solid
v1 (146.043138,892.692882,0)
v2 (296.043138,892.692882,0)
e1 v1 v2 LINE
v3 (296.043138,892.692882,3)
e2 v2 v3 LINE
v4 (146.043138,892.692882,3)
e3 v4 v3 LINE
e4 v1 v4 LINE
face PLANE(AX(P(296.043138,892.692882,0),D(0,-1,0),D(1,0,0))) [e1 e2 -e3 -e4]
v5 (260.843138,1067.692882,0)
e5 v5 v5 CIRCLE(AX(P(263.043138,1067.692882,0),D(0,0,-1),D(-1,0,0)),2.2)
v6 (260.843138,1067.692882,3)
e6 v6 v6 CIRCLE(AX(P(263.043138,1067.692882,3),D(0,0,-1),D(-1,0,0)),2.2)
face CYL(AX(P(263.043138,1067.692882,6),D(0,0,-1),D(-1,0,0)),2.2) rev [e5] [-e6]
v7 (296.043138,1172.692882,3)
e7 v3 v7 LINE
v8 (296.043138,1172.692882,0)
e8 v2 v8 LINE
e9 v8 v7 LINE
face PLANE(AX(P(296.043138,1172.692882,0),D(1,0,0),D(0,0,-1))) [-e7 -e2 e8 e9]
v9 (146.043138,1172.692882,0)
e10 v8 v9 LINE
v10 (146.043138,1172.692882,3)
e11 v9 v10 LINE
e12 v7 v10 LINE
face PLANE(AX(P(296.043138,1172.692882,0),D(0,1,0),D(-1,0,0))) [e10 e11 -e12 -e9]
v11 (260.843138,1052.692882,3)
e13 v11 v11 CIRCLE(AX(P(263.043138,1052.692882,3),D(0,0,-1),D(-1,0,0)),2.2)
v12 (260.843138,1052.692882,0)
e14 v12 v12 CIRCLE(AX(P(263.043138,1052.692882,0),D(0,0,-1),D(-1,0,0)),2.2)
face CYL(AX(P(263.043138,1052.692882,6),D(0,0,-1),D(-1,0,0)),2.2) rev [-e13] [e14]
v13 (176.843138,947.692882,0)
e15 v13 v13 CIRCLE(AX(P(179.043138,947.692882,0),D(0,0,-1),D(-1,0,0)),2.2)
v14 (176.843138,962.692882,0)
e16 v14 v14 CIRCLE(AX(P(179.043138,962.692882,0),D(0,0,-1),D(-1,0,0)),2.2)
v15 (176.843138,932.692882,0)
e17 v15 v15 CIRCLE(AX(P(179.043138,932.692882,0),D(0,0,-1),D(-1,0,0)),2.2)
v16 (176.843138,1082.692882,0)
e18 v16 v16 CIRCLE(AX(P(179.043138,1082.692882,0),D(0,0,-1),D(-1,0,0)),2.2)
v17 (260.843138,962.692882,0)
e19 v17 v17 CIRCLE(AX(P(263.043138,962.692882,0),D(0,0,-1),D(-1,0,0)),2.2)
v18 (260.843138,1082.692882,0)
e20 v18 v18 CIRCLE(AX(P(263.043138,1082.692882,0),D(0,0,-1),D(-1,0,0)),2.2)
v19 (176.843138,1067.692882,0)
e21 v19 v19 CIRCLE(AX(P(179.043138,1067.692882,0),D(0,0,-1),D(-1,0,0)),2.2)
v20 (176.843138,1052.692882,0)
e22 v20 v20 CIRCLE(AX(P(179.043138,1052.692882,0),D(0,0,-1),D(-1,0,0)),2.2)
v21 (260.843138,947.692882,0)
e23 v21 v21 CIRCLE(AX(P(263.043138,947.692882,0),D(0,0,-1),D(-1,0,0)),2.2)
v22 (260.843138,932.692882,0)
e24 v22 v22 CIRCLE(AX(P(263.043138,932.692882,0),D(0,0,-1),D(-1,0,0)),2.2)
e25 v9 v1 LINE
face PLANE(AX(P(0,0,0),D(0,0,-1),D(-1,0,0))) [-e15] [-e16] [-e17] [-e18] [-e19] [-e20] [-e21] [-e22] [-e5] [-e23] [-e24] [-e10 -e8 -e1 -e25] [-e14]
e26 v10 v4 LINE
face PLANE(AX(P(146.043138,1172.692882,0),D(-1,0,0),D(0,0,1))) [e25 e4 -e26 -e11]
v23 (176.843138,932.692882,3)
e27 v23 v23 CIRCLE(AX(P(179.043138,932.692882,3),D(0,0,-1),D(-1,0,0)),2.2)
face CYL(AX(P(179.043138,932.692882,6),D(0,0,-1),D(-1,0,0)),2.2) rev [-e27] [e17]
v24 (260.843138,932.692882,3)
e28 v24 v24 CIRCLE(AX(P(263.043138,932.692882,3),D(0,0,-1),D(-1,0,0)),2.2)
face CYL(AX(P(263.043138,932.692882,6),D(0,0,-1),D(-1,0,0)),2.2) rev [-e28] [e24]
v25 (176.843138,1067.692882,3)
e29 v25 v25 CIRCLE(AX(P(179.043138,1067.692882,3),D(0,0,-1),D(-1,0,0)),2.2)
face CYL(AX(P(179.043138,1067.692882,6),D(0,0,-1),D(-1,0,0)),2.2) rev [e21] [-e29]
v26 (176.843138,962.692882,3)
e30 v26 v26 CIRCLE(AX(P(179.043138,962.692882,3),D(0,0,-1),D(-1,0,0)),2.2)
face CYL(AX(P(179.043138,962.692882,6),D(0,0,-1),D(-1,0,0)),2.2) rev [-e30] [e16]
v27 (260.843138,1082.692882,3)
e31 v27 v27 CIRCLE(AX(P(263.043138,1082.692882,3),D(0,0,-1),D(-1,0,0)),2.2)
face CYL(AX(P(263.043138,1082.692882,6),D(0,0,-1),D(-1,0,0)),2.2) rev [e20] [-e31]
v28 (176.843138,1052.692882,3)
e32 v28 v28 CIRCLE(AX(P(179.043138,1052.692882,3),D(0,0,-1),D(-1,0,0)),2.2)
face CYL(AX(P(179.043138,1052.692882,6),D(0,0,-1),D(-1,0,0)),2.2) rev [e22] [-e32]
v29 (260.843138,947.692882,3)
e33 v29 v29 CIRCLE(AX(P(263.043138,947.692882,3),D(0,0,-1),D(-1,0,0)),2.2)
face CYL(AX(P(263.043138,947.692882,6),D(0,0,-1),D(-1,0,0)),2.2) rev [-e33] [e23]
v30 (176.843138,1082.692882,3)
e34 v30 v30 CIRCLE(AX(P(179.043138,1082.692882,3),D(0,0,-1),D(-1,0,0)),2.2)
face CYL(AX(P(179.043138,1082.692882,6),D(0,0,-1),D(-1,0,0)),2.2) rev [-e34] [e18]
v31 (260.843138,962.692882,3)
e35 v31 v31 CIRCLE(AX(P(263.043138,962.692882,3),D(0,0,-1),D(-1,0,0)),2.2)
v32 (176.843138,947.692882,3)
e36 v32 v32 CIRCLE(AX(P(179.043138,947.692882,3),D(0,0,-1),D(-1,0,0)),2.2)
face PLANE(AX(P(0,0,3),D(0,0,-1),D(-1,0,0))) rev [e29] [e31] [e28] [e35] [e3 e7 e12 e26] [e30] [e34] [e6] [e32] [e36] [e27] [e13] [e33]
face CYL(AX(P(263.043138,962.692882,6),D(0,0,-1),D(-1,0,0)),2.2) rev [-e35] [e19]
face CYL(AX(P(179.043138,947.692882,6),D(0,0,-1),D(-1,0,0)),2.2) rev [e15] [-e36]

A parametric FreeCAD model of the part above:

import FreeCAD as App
import Part
import Sketcher
from FreeCAD import Vector


def add_polygon(sketch, points):
    """Adds a closed chain of lines whose ends are joined by coincident constraints."""
    first, n = sketch.GeometryCount, len(points)
    for a, b in zip(points, points[1:] + points[:1]):
        sketch.addGeometry(Part.LineSegment(App.Vector(*a, 0), App.Vector(*b, 0)), False)
    for i in range(n):
        sketch.addConstraint(Sketcher.Constraint("Coincident", first + i, 2, first + (i + 1) % n, 1))

doc = App.newDocument("Part")
params = doc.addObject("Spreadsheet::Sheet", "Params")
for row, (alias, value) in enumerate([
    ("sketch1_width", "150 mm"),
    ("sketch1_height", "280 mm"),
    ("pad1_length", "3 mm"),
    ("sketch2_diameter", "4.4 mm"),
    ("pocket1_length", "18 mm"),
], start=1):
    params.set(f"A{row}", alias)
    params.set(f"B{row}", "=" + value)
    params.setAlias(f"B{row}", alias)

body = doc.addObject("PartDesign::Body", "Body")

# Sketch on XY plane
sketch1 = body.newObject("Sketcher::SketchObject", "Sketch")
sketch1.AttachmentSupport = (doc.getObject("XY_Plane"), [""])
sketch1.MapMode = "FlatFace"
add_polygon(sketch1, [(296.043138, 1172.692882), (146.043138, 1172.692882), (146.043137, 892.692882), (296.043138, 892.692882)])  # lines 0-3
sketch1.addConstraint(Sketcher.Constraint("Horizontal", 0))
sketch1.addConstraint(Sketcher.Constraint("Vertical", 1))
sketch1.addConstraint(Sketcher.Constraint("Horizontal", 2))
sketch1.addConstraint(Sketcher.Constraint("Vertical", 3))
sketch1.addConstraint(Sketcher.Constraint("DistanceX", 0, 2, 0, 1, 150.0))
sketch1.addConstraint(Sketcher.Constraint("DistanceY", 1, 2, 1, 1, 280.0))
sketch1.addConstraint(Sketcher.Constraint("DistanceY", -1, 1, 2, 2, 892.692882))
sketch1.addConstraint(Sketcher.Constraint("DistanceX", -1, 1, 0, 2, 146.043138))
sketch1.setExpression("Constraints[8]", "Params.sketch1_width")
sketch1.setExpression("Constraints[9]", "Params.sketch1_height")
pad1 = body.newObject("PartDesign::Pad", "Pad")
pad1.Profile = sketch1
pad1.setExpression("Length", "Params.pad1_length")

# Sketch on XY plane
sketch2 = body.newObject("Sketcher::SketchObject", "Sketch001")
sketch2.AttachmentSupport = (doc.getObject("XY_Plane"), [""])
sketch2.MapMode = "FlatFace"
sketch2.AttachmentOffset = App.Placement(Vector(0, 0, 6), App.Rotation())
sketch2.addGeometry(Part.Circle(Vector(179.043138, 1082.692882, 0), Vector(0, 0, 1), 2.2), False)
sketch2.addGeometry(Part.Circle(Vector(179.043138, 1067.692882, 0), Vector(0, 0, 1), 2.2), False)
sketch2.addGeometry(Part.Circle(Vector(179.043138, 1052.692882, 0), Vector(0, 0, 1), 2.2), False)
sketch2.addGeometry(Part.Circle(Vector(179.043138, 962.692882, 0), Vector(0, 0, 1), 2.2), False)
sketch2.addGeometry(Part.Circle(Vector(179.043138, 947.692882, 0), Vector(0, 0, 1), 2.2), False)
sketch2.addGeometry(Part.Circle(Vector(179.043138, 932.692882, 0), Vector(0, 0, 1), 2.2), False)
sketch2.addGeometry(Part.Circle(Vector(263.043138, 932.692882, 0), Vector(0, 0, 1), 2.2), False)
sketch2.addGeometry(Part.Circle(Vector(263.043138, 947.692882, 0), Vector(0, 0, 1), 2.2), False)
sketch2.addGeometry(Part.Circle(Vector(263.043138, 962.692882, 0), Vector(0, 0, 1), 2.2), False)
sketch2.addGeometry(Part.Circle(Vector(263.043138, 1052.692882, 0), Vector(0, 0, 1), 2.2), False)
sketch2.addGeometry(Part.Circle(Vector(263.043138, 1082.692882, 0), Vector(0, 0, 1), 2.2), False)
sketch2.addGeometry(Part.Circle(Vector(263.043138, 1067.692882, 0), Vector(0, 0, 1), 2.2), False)
sketch2.addConstraint(Sketcher.Constraint("Equal", 0, 1))
sketch2.addConstraint(Sketcher.Constraint("Equal", 1, 2))
sketch2.addConstraint(Sketcher.Constraint("Equal", 2, 3))
sketch2.addConstraint(Sketcher.Constraint("Equal", 3, 4))
sketch2.addConstraint(Sketcher.Constraint("Equal", 4, 5))
sketch2.addConstraint(Sketcher.Constraint("Equal", 5, 6))
sketch2.addConstraint(Sketcher.Constraint("Equal", 6, 7))
sketch2.addConstraint(Sketcher.Constraint("Equal", 7, 8))
sketch2.addConstraint(Sketcher.Constraint("Equal", 8, 9))
sketch2.addConstraint(Sketcher.Constraint("Equal", 9, 10))
sketch2.addConstraint(Sketcher.Constraint("Equal", 10, 11))
sketch2.addConstraint(Sketcher.Constraint("Horizontal", 5, 3, 6, 3))
sketch2.addConstraint(Sketcher.Constraint("Horizontal", 4, 3, 7, 3))
sketch2.addConstraint(Sketcher.Constraint("Horizontal", 3, 3, 8, 3))
sketch2.addConstraint(Sketcher.Constraint("Horizontal", 2, 3, 9, 3))
sketch2.addConstraint(Sketcher.Constraint("Horizontal", 0, 3, 10, 3))
sketch2.addConstraint(Sketcher.Constraint("Horizontal", 1, 3, 11, 3))
sketch2.addConstraint(Sketcher.Constraint("Vertical", 0, 3, 1, 3))
sketch2.addConstraint(Sketcher.Constraint("Vertical", 1, 3, 2, 3))
sketch2.addConstraint(Sketcher.Constraint("Vertical", 2, 3, 3, 3))
sketch2.addConstraint(Sketcher.Constraint("Vertical", 3, 3, 4, 3))
sketch2.addConstraint(Sketcher.Constraint("Vertical", 4, 3, 5, 3))
sketch2.addConstraint(Sketcher.Constraint("Vertical", 6, 3, 7, 3))
sketch2.addConstraint(Sketcher.Constraint("Vertical", 7, 3, 8, 3))
sketch2.addConstraint(Sketcher.Constraint("Vertical", 8, 3, 9, 3))
sketch2.addConstraint(Sketcher.Constraint("Vertical", 9, 3, 10, 3))
sketch2.addConstraint(Sketcher.Constraint("Vertical", 10, 3, 11, 3))
sketch2.addConstraint(Sketcher.Constraint("Diameter", 0, 4.4))
sketch2.addConstraint(Sketcher.Constraint("DistanceY", 1, 3, 0, 3, 15.0))
sketch2.addConstraint(Sketcher.Constraint("DistanceY", 2, 3, 1, 3, 15.0))
sketch2.addConstraint(Sketcher.Constraint("DistanceY", 3, 3, 2, 3, 90.0))
sketch2.addConstraint(Sketcher.Constraint("DistanceY", 4, 3, 3, 3, 15.0))
sketch2.addConstraint(Sketcher.Constraint("DistanceY", 5, 3, 4, 3, 15.0))
sketch2.addConstraint(Sketcher.Constraint("DistanceX", 5, 3, 6, 3, 84.0))
sketch2.addConstraint(Sketcher.Constraint("DistanceY", -1, 1, 3, 3, 962.692882))
sketch2.addConstraint(Sketcher.Constraint("DistanceX", -1, 1, 0, 3, 179.043138))
sketch2.setExpression("Constraints[27]", "Params.sketch2_diameter")
pocket1 = body.newObject("PartDesign::Pocket", "Pocket")
pocket1.Profile = sketch2
pocket1.setExpression("Length", "Params.pocket1_length")

doc.recompute()
